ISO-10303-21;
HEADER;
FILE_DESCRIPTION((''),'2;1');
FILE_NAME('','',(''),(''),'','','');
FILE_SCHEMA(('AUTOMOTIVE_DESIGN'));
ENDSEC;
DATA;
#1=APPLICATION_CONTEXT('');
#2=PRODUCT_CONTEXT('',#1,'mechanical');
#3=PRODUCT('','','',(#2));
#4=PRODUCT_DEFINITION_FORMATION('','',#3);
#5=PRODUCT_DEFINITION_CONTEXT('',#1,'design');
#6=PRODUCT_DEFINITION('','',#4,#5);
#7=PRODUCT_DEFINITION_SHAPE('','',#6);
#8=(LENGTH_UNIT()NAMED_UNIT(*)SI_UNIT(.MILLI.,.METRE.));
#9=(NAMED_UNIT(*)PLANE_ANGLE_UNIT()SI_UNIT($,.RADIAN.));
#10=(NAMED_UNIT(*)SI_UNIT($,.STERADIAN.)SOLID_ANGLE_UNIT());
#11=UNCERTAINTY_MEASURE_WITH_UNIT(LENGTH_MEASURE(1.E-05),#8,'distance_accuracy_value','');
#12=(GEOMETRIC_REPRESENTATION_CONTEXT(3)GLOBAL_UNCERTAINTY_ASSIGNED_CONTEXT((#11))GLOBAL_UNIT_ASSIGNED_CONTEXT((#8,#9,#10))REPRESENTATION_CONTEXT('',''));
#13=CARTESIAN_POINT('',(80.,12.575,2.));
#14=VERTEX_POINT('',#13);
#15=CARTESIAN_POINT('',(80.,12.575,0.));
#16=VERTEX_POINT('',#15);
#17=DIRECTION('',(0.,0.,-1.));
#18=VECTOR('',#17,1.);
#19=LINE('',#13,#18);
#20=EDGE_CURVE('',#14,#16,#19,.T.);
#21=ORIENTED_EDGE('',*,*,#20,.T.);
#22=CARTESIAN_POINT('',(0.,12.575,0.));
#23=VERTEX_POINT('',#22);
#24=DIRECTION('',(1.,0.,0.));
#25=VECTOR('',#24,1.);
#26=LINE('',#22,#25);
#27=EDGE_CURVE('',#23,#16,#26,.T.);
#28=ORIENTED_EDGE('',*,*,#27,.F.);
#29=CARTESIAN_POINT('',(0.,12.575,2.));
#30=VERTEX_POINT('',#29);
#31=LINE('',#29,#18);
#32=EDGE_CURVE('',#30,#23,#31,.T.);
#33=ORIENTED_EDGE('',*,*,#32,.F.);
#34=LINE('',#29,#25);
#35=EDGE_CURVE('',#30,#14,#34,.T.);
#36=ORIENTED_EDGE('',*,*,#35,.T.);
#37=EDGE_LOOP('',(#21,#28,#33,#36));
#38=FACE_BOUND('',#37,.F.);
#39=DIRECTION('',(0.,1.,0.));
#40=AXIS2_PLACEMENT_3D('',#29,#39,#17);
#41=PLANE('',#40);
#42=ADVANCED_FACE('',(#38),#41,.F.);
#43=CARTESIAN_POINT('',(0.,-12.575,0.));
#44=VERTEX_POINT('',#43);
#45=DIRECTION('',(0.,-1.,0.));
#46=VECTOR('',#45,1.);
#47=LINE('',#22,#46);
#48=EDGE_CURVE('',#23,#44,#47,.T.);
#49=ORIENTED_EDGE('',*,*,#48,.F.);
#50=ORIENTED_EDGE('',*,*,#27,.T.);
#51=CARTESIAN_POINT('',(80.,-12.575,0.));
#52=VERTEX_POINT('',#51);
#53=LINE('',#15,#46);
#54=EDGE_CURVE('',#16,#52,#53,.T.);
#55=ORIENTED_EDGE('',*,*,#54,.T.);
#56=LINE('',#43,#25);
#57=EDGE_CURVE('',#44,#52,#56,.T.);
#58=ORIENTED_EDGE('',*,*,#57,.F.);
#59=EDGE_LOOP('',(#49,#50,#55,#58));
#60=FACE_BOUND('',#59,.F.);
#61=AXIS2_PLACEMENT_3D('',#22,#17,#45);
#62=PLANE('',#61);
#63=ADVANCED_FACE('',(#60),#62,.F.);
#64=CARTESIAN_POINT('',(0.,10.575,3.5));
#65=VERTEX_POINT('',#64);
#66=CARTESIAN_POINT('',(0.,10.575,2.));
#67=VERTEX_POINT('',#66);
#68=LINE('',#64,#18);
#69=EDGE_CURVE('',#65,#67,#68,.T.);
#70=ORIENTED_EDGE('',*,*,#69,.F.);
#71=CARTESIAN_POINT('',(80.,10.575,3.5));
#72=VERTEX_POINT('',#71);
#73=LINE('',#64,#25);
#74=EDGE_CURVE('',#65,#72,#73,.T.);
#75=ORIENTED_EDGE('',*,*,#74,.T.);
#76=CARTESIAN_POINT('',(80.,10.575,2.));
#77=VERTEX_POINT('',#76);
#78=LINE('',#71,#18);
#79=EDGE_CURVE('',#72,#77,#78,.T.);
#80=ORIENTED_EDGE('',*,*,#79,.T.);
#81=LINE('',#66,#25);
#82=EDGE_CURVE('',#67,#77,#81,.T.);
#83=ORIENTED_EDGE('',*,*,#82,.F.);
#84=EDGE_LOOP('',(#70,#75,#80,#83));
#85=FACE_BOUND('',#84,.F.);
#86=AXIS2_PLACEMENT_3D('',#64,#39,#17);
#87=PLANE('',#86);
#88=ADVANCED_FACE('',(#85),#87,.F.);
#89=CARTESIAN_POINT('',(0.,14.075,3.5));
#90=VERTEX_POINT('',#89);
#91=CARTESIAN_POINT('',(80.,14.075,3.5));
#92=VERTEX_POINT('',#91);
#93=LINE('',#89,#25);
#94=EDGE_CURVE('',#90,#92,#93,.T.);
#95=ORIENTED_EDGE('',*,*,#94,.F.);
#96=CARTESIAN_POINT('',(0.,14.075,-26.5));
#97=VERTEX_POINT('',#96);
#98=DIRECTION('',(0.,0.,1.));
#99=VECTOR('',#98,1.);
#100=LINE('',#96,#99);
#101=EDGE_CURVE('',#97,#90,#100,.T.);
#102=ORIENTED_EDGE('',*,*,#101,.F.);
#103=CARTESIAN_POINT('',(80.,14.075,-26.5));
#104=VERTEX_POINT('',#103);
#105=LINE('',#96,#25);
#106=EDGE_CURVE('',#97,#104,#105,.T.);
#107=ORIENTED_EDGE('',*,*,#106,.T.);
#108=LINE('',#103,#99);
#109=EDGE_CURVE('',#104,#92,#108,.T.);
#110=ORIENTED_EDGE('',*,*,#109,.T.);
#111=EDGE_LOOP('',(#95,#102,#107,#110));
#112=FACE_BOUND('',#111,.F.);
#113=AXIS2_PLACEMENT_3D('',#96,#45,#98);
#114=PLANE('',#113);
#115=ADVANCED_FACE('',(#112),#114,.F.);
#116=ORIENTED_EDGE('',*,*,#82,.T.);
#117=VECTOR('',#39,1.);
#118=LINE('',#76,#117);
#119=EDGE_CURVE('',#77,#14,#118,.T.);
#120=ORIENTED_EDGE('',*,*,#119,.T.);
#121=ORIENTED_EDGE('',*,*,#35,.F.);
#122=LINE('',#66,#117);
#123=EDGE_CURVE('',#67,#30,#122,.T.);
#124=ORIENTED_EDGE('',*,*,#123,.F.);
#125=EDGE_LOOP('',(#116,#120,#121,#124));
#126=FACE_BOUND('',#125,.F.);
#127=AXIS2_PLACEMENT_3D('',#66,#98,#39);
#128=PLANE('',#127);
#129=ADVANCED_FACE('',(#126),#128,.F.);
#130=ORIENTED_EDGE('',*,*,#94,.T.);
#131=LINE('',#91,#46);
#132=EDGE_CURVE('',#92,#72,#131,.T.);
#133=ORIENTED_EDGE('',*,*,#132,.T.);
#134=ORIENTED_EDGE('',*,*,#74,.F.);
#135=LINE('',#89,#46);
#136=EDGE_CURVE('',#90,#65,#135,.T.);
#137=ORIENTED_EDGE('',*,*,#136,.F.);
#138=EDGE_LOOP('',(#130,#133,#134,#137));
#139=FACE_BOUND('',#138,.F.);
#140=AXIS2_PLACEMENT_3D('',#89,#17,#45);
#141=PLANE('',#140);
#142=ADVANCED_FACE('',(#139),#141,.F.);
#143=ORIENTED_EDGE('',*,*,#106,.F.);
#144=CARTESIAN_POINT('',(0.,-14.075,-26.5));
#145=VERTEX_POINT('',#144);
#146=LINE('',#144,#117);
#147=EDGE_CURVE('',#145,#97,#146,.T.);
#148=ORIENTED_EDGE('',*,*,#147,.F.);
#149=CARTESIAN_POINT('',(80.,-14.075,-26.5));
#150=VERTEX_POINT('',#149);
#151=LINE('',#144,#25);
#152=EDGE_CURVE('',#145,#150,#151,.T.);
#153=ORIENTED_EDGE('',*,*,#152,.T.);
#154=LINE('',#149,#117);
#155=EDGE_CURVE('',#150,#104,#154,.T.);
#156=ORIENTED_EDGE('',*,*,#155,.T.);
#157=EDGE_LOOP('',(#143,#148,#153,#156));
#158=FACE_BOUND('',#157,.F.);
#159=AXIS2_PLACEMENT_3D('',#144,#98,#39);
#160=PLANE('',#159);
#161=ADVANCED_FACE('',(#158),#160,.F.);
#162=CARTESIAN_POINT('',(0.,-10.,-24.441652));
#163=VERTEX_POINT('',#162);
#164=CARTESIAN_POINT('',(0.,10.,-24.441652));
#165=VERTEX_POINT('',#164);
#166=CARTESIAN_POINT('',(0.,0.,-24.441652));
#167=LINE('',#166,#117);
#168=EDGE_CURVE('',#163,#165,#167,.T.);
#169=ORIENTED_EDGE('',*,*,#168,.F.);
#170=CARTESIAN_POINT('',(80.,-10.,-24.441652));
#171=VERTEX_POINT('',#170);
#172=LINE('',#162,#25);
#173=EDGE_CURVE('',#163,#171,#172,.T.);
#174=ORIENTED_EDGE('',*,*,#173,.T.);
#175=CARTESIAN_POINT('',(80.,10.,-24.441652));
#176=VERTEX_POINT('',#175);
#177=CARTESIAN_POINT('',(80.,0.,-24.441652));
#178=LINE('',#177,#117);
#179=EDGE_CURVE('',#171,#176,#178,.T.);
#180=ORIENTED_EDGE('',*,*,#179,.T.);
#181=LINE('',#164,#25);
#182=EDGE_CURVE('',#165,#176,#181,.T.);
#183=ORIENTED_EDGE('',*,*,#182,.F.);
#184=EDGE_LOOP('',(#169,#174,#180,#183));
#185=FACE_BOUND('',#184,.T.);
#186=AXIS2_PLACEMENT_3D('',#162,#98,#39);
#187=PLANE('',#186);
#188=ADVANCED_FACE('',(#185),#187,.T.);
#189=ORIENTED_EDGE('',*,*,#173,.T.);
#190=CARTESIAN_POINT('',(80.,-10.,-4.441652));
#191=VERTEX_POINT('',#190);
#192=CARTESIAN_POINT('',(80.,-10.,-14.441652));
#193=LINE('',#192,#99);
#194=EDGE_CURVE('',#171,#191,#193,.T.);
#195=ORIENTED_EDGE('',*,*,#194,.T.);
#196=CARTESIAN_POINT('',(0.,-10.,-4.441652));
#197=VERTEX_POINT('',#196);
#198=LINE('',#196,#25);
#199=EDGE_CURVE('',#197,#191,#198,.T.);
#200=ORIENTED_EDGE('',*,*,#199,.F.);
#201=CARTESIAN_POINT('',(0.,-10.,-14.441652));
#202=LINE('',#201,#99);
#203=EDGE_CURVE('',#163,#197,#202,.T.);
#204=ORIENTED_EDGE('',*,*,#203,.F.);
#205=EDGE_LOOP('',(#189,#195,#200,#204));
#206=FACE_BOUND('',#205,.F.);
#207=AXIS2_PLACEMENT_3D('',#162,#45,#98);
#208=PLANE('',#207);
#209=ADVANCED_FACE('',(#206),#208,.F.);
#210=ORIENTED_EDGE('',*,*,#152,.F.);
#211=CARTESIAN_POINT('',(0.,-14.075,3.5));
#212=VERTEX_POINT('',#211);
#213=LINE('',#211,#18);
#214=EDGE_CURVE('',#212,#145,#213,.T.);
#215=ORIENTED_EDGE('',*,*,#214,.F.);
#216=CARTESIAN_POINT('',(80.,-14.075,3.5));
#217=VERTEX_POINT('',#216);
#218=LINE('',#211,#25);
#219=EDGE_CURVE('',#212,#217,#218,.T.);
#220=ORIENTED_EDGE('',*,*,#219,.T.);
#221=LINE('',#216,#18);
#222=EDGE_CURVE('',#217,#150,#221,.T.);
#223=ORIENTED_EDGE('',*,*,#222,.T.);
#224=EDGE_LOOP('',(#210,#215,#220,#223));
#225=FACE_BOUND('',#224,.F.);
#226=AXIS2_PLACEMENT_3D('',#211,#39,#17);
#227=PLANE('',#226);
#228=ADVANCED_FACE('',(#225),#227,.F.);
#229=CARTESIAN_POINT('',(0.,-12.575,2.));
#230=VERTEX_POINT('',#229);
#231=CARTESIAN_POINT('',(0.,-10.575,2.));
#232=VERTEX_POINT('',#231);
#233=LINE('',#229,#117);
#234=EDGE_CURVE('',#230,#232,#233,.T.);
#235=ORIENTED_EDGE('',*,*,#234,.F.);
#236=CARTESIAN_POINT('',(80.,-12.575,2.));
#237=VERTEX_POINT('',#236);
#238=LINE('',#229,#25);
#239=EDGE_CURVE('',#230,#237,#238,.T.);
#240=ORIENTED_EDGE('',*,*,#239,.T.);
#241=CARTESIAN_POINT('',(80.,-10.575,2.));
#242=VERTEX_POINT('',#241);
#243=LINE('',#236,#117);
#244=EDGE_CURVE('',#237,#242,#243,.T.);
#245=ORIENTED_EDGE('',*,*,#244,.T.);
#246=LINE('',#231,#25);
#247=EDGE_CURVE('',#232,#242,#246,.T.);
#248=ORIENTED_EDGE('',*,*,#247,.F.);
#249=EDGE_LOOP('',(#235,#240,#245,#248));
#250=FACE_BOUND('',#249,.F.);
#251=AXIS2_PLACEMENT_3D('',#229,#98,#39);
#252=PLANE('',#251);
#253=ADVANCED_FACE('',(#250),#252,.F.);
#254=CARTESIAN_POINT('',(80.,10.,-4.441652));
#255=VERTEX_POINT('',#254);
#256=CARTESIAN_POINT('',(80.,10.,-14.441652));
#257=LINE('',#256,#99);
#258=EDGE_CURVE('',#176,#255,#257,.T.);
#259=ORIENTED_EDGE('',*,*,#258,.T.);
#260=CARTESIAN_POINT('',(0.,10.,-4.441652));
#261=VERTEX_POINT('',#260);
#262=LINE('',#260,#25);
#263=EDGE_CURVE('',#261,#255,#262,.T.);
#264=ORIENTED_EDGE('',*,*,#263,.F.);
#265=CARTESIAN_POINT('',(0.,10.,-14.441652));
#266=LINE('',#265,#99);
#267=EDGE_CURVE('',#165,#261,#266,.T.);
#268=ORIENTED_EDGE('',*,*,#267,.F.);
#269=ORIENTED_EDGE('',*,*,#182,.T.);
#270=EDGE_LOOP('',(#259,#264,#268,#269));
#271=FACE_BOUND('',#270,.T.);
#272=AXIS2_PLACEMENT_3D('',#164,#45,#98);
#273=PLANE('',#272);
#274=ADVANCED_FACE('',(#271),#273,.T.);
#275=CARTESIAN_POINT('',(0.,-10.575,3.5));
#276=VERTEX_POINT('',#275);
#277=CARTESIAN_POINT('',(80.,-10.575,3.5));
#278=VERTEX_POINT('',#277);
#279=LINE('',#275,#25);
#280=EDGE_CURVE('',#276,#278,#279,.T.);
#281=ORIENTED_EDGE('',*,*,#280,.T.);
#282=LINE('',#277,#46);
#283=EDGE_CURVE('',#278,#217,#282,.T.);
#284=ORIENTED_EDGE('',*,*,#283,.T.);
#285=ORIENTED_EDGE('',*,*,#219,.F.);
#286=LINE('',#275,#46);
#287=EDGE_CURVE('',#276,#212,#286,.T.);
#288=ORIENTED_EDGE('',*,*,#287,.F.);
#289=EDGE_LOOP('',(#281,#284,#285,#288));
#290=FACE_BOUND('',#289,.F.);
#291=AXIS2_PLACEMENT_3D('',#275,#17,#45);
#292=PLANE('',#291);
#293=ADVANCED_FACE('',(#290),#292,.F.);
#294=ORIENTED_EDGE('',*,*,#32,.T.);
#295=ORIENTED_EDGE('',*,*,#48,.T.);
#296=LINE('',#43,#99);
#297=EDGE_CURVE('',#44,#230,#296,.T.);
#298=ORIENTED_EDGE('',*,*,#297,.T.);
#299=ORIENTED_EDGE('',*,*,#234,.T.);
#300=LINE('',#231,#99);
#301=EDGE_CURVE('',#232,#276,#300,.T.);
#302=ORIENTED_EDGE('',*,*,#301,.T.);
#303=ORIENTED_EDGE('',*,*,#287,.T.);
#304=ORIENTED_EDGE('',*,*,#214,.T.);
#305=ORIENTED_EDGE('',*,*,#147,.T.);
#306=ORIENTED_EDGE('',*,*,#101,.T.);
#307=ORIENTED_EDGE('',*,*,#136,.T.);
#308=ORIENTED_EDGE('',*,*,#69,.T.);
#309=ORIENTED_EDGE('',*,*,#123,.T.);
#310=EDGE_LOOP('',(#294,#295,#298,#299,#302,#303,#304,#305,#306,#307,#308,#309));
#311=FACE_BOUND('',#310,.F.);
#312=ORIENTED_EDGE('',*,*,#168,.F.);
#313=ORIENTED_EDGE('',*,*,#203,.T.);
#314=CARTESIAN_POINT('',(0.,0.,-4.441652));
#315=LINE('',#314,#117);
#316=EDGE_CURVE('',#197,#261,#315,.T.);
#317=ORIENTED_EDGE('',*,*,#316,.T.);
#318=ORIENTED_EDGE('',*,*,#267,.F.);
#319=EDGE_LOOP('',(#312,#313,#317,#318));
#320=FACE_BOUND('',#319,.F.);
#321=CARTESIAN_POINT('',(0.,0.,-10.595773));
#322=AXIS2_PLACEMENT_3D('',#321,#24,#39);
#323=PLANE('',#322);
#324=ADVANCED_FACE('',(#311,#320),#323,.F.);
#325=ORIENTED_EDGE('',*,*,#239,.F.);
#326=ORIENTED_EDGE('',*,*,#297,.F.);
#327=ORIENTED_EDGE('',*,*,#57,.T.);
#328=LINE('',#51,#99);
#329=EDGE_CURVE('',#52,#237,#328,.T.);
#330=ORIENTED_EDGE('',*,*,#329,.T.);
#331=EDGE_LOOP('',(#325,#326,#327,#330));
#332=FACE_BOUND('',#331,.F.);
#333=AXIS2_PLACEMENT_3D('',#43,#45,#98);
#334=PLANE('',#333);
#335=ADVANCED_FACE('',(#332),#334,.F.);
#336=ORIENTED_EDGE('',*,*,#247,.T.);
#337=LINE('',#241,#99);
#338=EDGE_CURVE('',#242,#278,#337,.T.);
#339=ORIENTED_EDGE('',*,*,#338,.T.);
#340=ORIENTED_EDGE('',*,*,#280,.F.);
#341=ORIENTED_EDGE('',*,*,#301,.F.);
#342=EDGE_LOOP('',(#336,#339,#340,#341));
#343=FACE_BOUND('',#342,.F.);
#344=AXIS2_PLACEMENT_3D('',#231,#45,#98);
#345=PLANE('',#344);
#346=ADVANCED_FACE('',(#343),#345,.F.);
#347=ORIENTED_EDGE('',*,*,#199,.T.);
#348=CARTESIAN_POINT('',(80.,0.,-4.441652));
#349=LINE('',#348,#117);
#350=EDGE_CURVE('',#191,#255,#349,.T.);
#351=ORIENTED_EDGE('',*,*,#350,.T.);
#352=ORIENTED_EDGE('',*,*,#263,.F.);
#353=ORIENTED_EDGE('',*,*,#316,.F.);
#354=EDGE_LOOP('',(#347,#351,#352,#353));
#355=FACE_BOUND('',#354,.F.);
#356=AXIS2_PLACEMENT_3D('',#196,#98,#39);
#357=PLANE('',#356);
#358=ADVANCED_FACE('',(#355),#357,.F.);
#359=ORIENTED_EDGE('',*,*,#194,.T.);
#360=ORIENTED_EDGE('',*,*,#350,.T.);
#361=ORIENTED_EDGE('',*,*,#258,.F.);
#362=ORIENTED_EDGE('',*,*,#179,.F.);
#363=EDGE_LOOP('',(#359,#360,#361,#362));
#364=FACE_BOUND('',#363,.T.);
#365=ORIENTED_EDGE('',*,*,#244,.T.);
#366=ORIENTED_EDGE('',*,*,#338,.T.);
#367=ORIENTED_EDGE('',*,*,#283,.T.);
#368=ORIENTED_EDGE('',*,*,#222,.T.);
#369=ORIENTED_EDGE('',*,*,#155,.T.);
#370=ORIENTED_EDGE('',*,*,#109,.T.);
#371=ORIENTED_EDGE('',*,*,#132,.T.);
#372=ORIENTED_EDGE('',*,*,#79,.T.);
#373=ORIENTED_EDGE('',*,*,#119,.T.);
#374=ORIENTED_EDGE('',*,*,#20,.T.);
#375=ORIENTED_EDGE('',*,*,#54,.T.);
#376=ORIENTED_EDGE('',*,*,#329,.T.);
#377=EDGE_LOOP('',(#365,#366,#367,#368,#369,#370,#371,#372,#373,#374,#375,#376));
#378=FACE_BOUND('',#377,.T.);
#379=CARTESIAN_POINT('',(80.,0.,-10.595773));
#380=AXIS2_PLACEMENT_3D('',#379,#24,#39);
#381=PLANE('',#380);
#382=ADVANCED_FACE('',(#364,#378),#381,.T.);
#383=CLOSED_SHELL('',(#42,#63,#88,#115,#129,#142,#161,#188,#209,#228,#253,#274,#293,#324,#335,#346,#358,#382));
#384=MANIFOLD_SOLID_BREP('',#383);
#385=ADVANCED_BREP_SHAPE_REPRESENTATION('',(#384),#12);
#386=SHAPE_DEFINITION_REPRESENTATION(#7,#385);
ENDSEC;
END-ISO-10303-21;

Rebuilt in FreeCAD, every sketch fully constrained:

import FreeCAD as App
import Part
import Sketcher

V = App.Vector
Q = App.Units.Quantity


def add_polygon(sketch, points):
    """Adds a closed chain of lines whose ends are joined by coincident constraints."""
    first, n = sketch.GeometryCount, len(points)
    for a, b in zip(points, points[1:] + points[:1]):
        sketch.addGeometry(Part.LineSegment(App.Vector(*a, 0), App.Vector(*b, 0)), False)
    for i in range(n):
        sketch.addConstraint(Sketcher.Constraint("Coincident", first + i, 2, first + (i + 1) % n, 1))

doc = App.newDocument("Part")
body = doc.addObject("PartDesign::Body", "Body")

# Sketch on YZ plane
sketch1 = doc.addObject("Sketcher::SketchObject", "Sketch")
body.addObject(sketch1)
sketch1.AttachmentSupport = (doc.YZ_Plane, [""])
sketch1.MapMode = "FlatFace"
add_polygon(sketch1, [(12.6, 0), (-12.6, 0), (-12.6, 2), (-10.6, 2), (-10.6, 3.5), (-14.1, 3.5), (-14.1, -26.5), (14.1, -26.5), (14.1, 3.5), (10.6, 3.5), (10.6, 2), (12.6, 2)])  # lines 0-11
add_polygon(sketch1, [(10, -24.4), (-10, -24.4), (-10, -4.4), (10, -4.4)])  # lines 12-15
sketch1.addConstraint(Sketcher.Constraint("Horizontal", 0))
sketch1.addConstraint(Sketcher.Constraint("Vertical", 1))
sketch1.addConstraint(Sketcher.Constraint("Horizontal", 2))
sketch1.addConstraint(Sketcher.Constraint("Vertical", 3))
sketch1.addConstraint(Sketcher.Constraint("Horizontal", 4))
sketch1.addConstraint(Sketcher.Constraint("Vertical", 5))
sketch1.addConstraint(Sketcher.Constraint("Horizontal", 6))
sketch1.addConstraint(Sketcher.Constraint("Vertical", 7))
sketch1.addConstraint(Sketcher.Constraint("Horizontal", 8))
sketch1.addConstraint(Sketcher.Constraint("Vertical", 9))
sketch1.addConstraint(Sketcher.Constraint("Horizontal", 10))
sketch1.addConstraint(Sketcher.Constraint("Vertical", 11))
sketch1.addConstraint(Sketcher.Constraint("Horizontal", 12))
sketch1.addConstraint(Sketcher.Constraint("Vertical", 13))
sketch1.addConstraint(Sketcher.Constraint("Horizontal", 14))
sketch1.addConstraint(Sketcher.Constraint("Vertical", 15))
sketch1.addConstraint(Sketcher.Constraint("Symmetric", 0, 2, 11, 2, -1, 1))
sketch1.addConstraint(Sketcher.Constraint("Symmetric", 4, 2, 7, 2, -2))
sketch1.addConstraint(Sketcher.Constraint("Symmetric", 2, 2, 9, 2, -2))
sketch1.addConstraint(Sketcher.Constraint("Equal", 10, 1))
sketch1.addConstraint(Sketcher.Constraint("Equal", 14, 13))
sketch1.addConstraint(Sketcher.Constraint("DistanceX", 2, 1, 2, 2, Q("2 mm")))
sketch1.addConstraint(Sketcher.Constraint("DistanceX", 12, 2, 12, 1, Q("20 mm")))
sketch1.addConstraint(Sketcher.Constraint("DistanceY", 5, 2, 5, 1, Q("30 mm")))
sketch1.addConstraint(Sketcher.Constraint("DistanceX", 4, 2, 4, 1, Q("3.5 mm")))
sketch1.addConstraint(Sketcher.Constraint("DistanceY", 3, 1, 3, 2, Q("1.5 mm")))
sketch1.addConstraint(Sketcher.Constraint("DistanceX", 12, 2, -1, 1, Q("10 mm")))
sketch1.addConstraint(Sketcher.Constraint("DistanceX", 0, 2, 0, 1, Q("25.15 mm")))
sketch1.addConstraint(Sketcher.Constraint("DistanceY", 12, 2, -1, 1, Q("24.441652 mm")))
pad1 = doc.addObject("PartDesign::Pad", "Pad")
body.addObject(pad1)
pad1.Profile = sketch1
pad1.Length = 80

doc.recompute()
